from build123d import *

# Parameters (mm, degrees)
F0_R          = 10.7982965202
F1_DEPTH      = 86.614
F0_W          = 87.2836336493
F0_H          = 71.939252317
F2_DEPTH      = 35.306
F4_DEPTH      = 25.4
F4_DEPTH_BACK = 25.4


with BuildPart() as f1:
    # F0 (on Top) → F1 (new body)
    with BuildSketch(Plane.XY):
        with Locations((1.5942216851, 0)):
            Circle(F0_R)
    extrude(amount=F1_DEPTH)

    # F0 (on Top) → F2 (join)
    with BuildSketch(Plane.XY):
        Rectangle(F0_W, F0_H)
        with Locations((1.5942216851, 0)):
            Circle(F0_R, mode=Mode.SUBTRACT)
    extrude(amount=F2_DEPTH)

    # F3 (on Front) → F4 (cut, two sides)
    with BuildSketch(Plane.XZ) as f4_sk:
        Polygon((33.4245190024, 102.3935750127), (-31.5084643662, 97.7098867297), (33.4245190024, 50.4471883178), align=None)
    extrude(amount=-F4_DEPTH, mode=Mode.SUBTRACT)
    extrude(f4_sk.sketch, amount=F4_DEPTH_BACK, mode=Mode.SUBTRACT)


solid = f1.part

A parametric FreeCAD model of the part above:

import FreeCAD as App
import Part
import Sketcher
from FreeCAD import Vector
Q = App.Units.Quantity


def add_polygon(sketch, points):
    """Adds a closed chain of lines whose ends are joined by coincident constraints."""
    first, n = sketch.GeometryCount, len(points)
    for a, b in zip(points, points[1:] + points[:1]):
        sketch.addGeometry(Part.LineSegment(App.Vector(*a, 0), App.Vector(*b, 0)), False)
    for i in range(n):
        sketch.addConstraint(Sketcher.Constraint("Coincident", first + i, 2, first + (i + 1) % n, 1))

doc = App.newDocument("Part")
body = doc.addObject("PartDesign::Body", "Body")

# Sketch on XY plane
sketch1 = body.newObject("Sketcher::SketchObject", "Sketch")
sketch1.AttachmentSupport = (doc.getObject("XY_Plane"), [""])
sketch1.MapMode = "FlatFace"
sketch1.addGeometry(Part.Circle(Vector(2, 0, 0), Vector(0, 0, 1), 11), False)
sketch1.addConstraint(Sketcher.Constraint("PointOnObject", 0, 3, -1))
sketch1.addConstraint(Sketcher.Constraint("Diameter", 0, 21.596593))
sketch1.addConstraint(Sketcher.Constraint("DistanceX", -1, 1, 0, 3, 1.594222))
pad1 = body.newObject("PartDesign::Pad", "Pad")
pad1.Profile = sketch1
pad1.Length = Q("3.41 in")

# Sketch on XY plane
sketch2 = body.newObject("Sketcher::SketchObject", "Sketch001")
sketch2.AttachmentSupport = (doc.getObject("XY_Plane"), [""])
sketch2.MapMode = "FlatFace"
add_polygon(sketch2, [(-44, 36), (-44, -36), (44, -36), (44, 36)])  # lines 0-3
sketch2.addGeometry(Part.Circle(Vector(2, 0, 0), Vector(0, 0, 1), 11), False)  # 4
sketch2.addConstraint(Sketcher.Constraint("Vertical", 0))
sketch2.addConstraint(Sketcher.Constraint("Horizontal", 1))
sketch2.addConstraint(Sketcher.Constraint("Vertical", 2))
sketch2.addConstraint(Sketcher.Constraint("Horizontal", 3))
sketch2.addConstraint(Sketcher.Constraint("Symmetric", 0, 2, 2, 2, -1, 1))
sketch2.addConstraint(Sketcher.Constraint("PointOnObject", 4, 3, -1))
sketch2.addConstraint(Sketcher.Constraint("Diameter", 4, 21.596593))
sketch2.addConstraint(Sketcher.Constraint("DistanceX", 1, 1, 1, 2, 87.283634))
sketch2.addConstraint(Sketcher.Constraint("DistanceY", 0, 2, 0, 1, 71.939252))
sketch2.addConstraint(Sketcher.Constraint("DistanceX", -1, 1, 4, 3, 1.594222))
pad2 = body.newObject("PartDesign::Pad", "Pad001")
pad2.Profile = sketch2
pad2.Length = Q("1.39 in")

# Sketch on XZ plane
sketch3 = body.newObject("Sketcher::SketchObject", "Sketch002")
sketch3.AttachmentSupport = (doc.getObject("XZ_Plane"), [""])
sketch3.MapMode = "FlatFace"
add_polygon(sketch3, [(33, 102), (-32, 98), (33, 50)])  # lines 0-2
sketch3.addConstraint(Sketcher.Constraint("Vertical", 2))
sketch3.addConstraint(Sketcher.Constraint("DistanceY", 1, 2, 0, 2, 47.262698))
sketch3.addConstraint(Sketcher.Constraint("DistanceY", 2, 1, 2, 2, 51.946387))
sketch3.addConstraint(Sketcher.Constraint("DistanceX", -1, 1, 1, 2, 33.424519))
sketch3.addConstraint(Sketcher.Constraint("DistanceY", -1, 1, 1, 2, 50.447188))
sketch3.addConstraint(Sketcher.Constraint("Distance", 0, 65.101684))
pocket1 = body.newObject("PartDesign::Pocket", "Pocket")
pocket1.Profile = sketch3
pocket1.Type = "ThroughAll"
pocket1.Midplane = True

doc.recompute()
